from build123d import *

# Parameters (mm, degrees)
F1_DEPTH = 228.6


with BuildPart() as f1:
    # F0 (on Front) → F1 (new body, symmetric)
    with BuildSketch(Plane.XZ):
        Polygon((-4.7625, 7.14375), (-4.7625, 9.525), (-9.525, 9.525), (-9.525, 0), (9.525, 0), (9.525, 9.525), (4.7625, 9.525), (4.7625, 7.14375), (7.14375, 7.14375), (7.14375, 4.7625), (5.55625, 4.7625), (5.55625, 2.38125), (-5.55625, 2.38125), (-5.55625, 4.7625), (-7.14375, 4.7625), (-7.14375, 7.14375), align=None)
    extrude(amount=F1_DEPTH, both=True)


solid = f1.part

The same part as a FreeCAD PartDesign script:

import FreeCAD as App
import Part
import Sketcher
Q = App.Units.Quantity

doc = App.newDocument("Part")
body = doc.addObject("PartDesign::Body", "Body")

# Sketch on XZ plane
sketch1 = body.newObject("Sketcher::SketchObject", "Sketch")
sketch1.AttachmentSupport = (doc.getObject("XZ_Plane"), [""])
sketch1.MapMode = "FlatFace"
sketch1.addGeometry([
    Part.LineSegment(App.Vector(-4.8, 7.1, 0), App.Vector(-4.8, 9.5, 0)),  # 0
    Part.LineSegment(App.Vector(-4.8, 9.5, 0), App.Vector(-9.5, 9.5, 0)),  # 1
    Part.LineSegment(App.Vector(-9.5, 9.5, 0), App.Vector(-9.5, 0, 0)),  # 2
    Part.LineSegment(App.Vector(-9.5, 0, 0), App.Vector(9.5, 0, 0)),  # 3
    Part.LineSegment(App.Vector(9.5, 0, 0), App.Vector(9.5, 9.5, 0)),  # 4
    Part.LineSegment(App.Vector(9.5, 9.5, 0), App.Vector(4.8, 9.5, 0)),  # 5
    Part.LineSegment(App.Vector(4.8, 9.5, 0), App.Vector(4.8, 7.1, 0)),  # 6
    Part.LineSegment(App.Vector(4.8, 7.1, 0), App.Vector(7.1, 7.1, 0)),  # 7
    Part.LineSegment(App.Vector(7.1, 7.1, 0), App.Vector(7.1, 4.8, 0)),  # 8
    Part.LineSegment(App.Vector(7.1, 4.8, 0), App.Vector(5.6, 4.8, 0)),  # 9
    Part.LineSegment(App.Vector(5.6, 4.8, 0), App.Vector(5.6, 2.4, 0)),  # 10
    Part.LineSegment(App.Vector(5.6, 2.4, 0), App.Vector(-5.6, 2.4, 0)),  # 11
    Part.LineSegment(App.Vector(-5.6, 2.4, 0), App.Vector(-5.6, 4.8, 0)),  # 12
    Part.LineSegment(App.Vector(-5.6, 4.8, 0), App.Vector(-7.1, 4.8, 0)),  # 13
    Part.LineSegment(App.Vector(-7.1, 4.8, 0), App.Vector(-7.1, 7.1, 0)),  # 14
    Part.LineSegment(App.Vector(-7.1, 7.1, 0), App.Vector(-4.8, 7.1, 0)),  # 15
], False)
sketch1.addConstraint([
    Sketcher.Constraint("Coincident", 0, 2, 1, 1),
    Sketcher.Constraint("Coincident", 1, 2, 2, 1),
    Sketcher.Constraint("Coincident", 2, 2, 3, 1),
    Sketcher.Constraint("Coincident", 3, 2, 4, 1),
    Sketcher.Constraint("Coincident", 4, 2, 5, 1),
    Sketcher.Constraint("Coincident", 5, 2, 6, 1),
    Sketcher.Constraint("Coincident", 6, 2, 7, 1),
    Sketcher.Constraint("Coincident", 7, 2, 8, 1),
    Sketcher.Constraint("Coincident", 8, 2, 9, 1),
    Sketcher.Constraint("Coincident", 9, 2, 10, 1),
    Sketcher.Constraint("Coincident", 10, 2, 11, 1),
    Sketcher.Constraint("Coincident", 11, 2, 12, 1),
    Sketcher.Constraint("Coincident", 12, 2, 13, 1),
    Sketcher.Constraint("Coincident", 13, 2, 14, 1),
    Sketcher.Constraint("Coincident", 14, 2, 15, 1),
    Sketcher.Constraint("Coincident", 15, 2, 0, 1),
    Sketcher.Constraint("Vertical", 0),
    Sketcher.Constraint("Horizontal", 1),
    Sketcher.Constraint("Vertical", 2),
    Sketcher.Constraint("Horizontal", 3),
    Sketcher.Constraint("Vertical", 4),
    Sketcher.Constraint("Horizontal", 5),
    Sketcher.Constraint("Vertical", 6),
    Sketcher.Constraint("Horizontal", 7),
    Sketcher.Constraint("Vertical", 8),
    Sketcher.Constraint("Horizontal", 9),
    Sketcher.Constraint("Vertical", 10),
    Sketcher.Constraint("Horizontal", 11),
    Sketcher.Constraint("Vertical", 12),
    Sketcher.Constraint("Horizontal", 13),
    Sketcher.Constraint("Vertical", 14),
    Sketcher.Constraint("Horizontal", 15),
    Sketcher.Constraint("Symmetric", 2, 2, 3, 2, -1, 1),
    Sketcher.Constraint("Symmetric", 0, 2, 5, 2, -2),
    Sketcher.Constraint("Symmetric", 9, 2, 12, 2, -2),
    Sketcher.Constraint("Symmetric", 7, 2, 14, 2, -2),
    Sketcher.Constraint("Equal", 15, 0),
    Sketcher.Constraint("Equal", 6, 8),
    Sketcher.Constraint("Equal", 8, 10),
    Sketcher.Constraint("DistanceX", 3, 1, 3, 2, Q("0.75 in")),
    Sketcher.Constraint("DistanceX", 1, 2, 1, 1, Q("0.1875 in")),
    Sketcher.Constraint("DistanceX", 7, 1, 7, 2, Q("0.09375 in")),
    Sketcher.Constraint("DistanceX", 9, 2, 9, 1, Q("0.0625 in")),
    Sketcher.Constraint("DistanceY", 2, 2, 2, 1, Q("0.375 in")),
])
pad1 = body.newObject("PartDesign::Pad", "Pad")
pad1.Profile = sketch1
pad1.Length = Q("18 in")
pad1.Midplane = True

doc.recompute()
